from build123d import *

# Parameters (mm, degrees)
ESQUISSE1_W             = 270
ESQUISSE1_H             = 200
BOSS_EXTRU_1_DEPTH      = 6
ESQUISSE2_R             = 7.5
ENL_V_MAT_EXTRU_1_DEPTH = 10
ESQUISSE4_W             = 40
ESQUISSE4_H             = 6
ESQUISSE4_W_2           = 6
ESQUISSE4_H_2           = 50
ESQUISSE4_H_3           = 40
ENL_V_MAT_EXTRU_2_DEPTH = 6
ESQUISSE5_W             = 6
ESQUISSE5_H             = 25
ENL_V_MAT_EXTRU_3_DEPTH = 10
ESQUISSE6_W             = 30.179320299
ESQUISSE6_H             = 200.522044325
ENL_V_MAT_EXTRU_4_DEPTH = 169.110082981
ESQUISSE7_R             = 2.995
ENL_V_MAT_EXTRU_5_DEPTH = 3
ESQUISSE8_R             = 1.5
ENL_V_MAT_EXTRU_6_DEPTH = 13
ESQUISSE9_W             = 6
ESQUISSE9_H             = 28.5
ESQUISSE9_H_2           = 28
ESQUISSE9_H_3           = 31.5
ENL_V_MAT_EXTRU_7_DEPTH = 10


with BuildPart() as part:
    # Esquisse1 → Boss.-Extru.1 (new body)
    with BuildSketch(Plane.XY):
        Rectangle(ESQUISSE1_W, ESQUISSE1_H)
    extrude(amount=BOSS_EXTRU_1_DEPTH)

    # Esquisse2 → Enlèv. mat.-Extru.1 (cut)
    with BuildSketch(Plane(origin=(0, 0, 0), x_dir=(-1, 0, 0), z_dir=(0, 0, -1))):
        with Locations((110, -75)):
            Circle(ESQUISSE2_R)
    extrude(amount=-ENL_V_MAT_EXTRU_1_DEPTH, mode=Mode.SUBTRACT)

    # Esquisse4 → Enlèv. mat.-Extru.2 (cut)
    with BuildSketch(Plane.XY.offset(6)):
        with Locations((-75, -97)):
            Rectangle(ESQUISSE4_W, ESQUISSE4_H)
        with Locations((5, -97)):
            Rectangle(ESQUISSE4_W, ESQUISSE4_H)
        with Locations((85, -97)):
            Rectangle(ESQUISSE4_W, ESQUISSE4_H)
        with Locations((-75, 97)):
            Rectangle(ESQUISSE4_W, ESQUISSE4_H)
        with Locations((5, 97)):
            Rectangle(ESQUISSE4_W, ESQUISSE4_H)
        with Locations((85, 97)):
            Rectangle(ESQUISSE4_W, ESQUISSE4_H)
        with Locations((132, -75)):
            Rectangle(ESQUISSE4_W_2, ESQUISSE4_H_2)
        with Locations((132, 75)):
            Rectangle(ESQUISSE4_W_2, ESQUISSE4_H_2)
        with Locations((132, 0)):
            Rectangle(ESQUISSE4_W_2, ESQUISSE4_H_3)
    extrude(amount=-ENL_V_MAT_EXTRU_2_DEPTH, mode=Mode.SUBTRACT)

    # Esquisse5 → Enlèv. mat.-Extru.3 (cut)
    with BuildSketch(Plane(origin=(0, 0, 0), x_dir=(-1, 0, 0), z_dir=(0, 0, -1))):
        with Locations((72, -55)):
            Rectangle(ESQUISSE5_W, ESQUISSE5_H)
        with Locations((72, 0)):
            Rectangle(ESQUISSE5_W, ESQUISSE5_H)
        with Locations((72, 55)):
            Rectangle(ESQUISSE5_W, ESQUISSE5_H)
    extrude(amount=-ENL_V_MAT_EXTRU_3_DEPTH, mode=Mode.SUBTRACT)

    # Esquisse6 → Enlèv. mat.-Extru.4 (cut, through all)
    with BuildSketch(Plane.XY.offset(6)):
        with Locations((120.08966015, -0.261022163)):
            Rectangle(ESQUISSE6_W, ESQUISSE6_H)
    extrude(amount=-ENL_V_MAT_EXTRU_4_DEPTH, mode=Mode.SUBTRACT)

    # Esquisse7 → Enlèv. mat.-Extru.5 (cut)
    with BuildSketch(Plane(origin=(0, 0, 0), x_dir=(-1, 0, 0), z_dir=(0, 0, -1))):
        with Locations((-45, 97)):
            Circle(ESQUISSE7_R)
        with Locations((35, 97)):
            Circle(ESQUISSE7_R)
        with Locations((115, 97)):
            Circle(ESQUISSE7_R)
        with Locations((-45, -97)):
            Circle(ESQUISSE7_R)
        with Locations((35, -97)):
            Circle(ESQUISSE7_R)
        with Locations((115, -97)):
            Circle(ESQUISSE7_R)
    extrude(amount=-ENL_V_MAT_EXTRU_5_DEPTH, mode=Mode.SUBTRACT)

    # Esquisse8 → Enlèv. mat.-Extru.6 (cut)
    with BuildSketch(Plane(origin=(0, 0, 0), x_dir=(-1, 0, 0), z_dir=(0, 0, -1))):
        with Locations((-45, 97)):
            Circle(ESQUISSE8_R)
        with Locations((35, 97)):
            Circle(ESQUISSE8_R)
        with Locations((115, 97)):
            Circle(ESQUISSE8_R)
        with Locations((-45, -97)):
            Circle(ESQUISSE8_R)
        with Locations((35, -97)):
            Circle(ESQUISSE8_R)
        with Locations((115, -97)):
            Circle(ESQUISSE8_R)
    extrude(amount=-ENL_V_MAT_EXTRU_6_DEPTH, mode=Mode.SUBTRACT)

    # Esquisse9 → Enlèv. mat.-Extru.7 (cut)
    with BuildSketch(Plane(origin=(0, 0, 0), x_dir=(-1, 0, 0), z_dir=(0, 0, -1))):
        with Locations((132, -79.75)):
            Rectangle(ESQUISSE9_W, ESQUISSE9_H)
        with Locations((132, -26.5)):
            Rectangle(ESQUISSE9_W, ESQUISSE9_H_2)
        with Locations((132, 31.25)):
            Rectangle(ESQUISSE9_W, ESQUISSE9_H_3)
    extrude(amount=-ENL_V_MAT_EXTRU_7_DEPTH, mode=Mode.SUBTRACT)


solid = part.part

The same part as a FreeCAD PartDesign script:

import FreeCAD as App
import Part
import Sketcher

V = App.Vector
Q = App.Units.Quantity


def add_polygon(sketch, points):
    """Adds a closed chain of lines whose ends are joined by coincident constraints."""
    first, n = sketch.GeometryCount, len(points)
    for a, b in zip(points, points[1:] + points[:1]):
        sketch.addGeometry(Part.LineSegment(App.Vector(*a, 0), App.Vector(*b, 0)), False)
    for i in range(n):
        sketch.addConstraint(Sketcher.Constraint("Coincident", first + i, 2, first + (i + 1) % n, 1))

doc = App.newDocument("Part")
body = doc.addObject("PartDesign::Body", "Body")

sketch1 = doc.addObject("Sketcher::SketchObject", "Sketch")
body.addObject(sketch1)
sketch1.AttachmentSupport = (doc.XY_Plane, [""])
sketch1.MapMode = "FlatFace"
add_polygon(sketch1, [(-135, 100), (-135, -100), (135, -100), (135, 100)])
sketch1.addConstraint([
    Sketcher.Constraint("Vertical", 0),
    Sketcher.Constraint("Horizontal", 1),
    Sketcher.Constraint("Vertical", 2),
    Sketcher.Constraint("Horizontal", 3),
    Sketcher.Constraint("Symmetric", 0, 2, 2, 2, -1, 1),
    Sketcher.Constraint("DistanceX", 1, 1, 1, 2, Q("270 mm")),
    Sketcher.Constraint("DistanceY", 0, 2, 0, 1, Q("200 mm")),
])
pad1 = doc.addObject("PartDesign::Pad", "Pad")
body.addObject(pad1)
pad1.Profile = sketch1
pad1.Length = 6

sketch2 = doc.addObject("Sketcher::SketchObject", "Sketch001")
body.addObject(sketch2)
sketch2.AttachmentSupport = (doc.XY_Plane, [""])
sketch2.MapMode = "FlatFace"
sketch2.addGeometry(Part.Circle(V(-110, -75, 0), V(0, 0, 1), 8), False)
sketch2.addConstraint([
    Sketcher.Constraint("Diameter", 0, Q("15 mm")),
    Sketcher.Constraint("DistanceX", 0, 3, -1, 1, Q("110 mm")),
    Sketcher.Constraint("DistanceY", 0, 3, -1, 1, Q("75 mm")),
])
pocket1 = doc.addObject("PartDesign::Pocket", "Pocket")
body.addObject(pocket1)
pocket1.Profile = sketch2
pocket1.Length = 10
pocket1.Reversed = True

sketch3 = doc.addObject("Sketcher::SketchObject", "Sketch002")
body.addObject(sketch3)
sketch3.AttachmentSupport = (doc.XY_Plane, [""])
sketch3.MapMode = "FlatFace"
sketch3.AttachmentOffset = App.Placement(V(0, 0, 6), App.Rotation())
add_polygon(sketch3, [(-95, -94), (-95, -100), (-55, -100), (-55, -94)])
add_polygon(sketch3, [(-15, -94), (-15, -100), (25, -100), (25, -94)])
add_polygon(sketch3, [(65, -94), (65, -100), (105, -100), (105, -94)])
add_polygon(sketch3, [(-95, 100), (-95, 94), (-55, 94), (-55, 100)])
add_polygon(sketch3, [(-15, 100), (-15, 94), (25, 94), (25, 100)])
add_polygon(sketch3, [(65, 100), (65, 94), (105, 94), (105, 100)])
add_polygon(sketch3, [(129, -50), (129, -100), (135, -100), (135, -50)])
add_polygon(sketch3, [(129, 100), (129, 50), (135, 50), (135, 100)])
add_polygon(sketch3, [(129, 20), (129, -20), (135, -20), (135, 20)])
sketch3.addConstraint([
    Sketcher.Constraint("Vertical", 0),
    Sketcher.Constraint("Horizontal", 1),
    Sketcher.Constraint("Vertical", 2),
    Sketcher.Constraint("Horizontal", 3),
    Sketcher.Constraint("Vertical", 4),
    Sketcher.Constraint("Horizontal", 5),
    Sketcher.Constraint("Vertical", 6),
    Sketcher.Constraint("Horizontal", 7),
    Sketcher.Constraint("Vertical", 8),
    Sketcher.Constraint("Horizontal", 9),
    Sketcher.Constraint("Vertical", 10),
    Sketcher.Constraint("Horizontal", 11),
    Sketcher.Constraint("Vertical", 12),
    Sketcher.Constraint("Horizontal", 13),
    Sketcher.Constraint("Vertical", 14),
    Sketcher.Constraint("Horizontal", 15),
    Sketcher.Constraint("Vertical", 16),
    Sketcher.Constraint("Horizontal", 17),
    Sketcher.Constraint("Vertical", 18),
    Sketcher.Constraint("Horizontal", 19),
    Sketcher.Constraint("Vertical", 20),
    Sketcher.Constraint("Horizontal", 21),
    Sketcher.Constraint("Vertical", 22),
    Sketcher.Constraint("Horizontal", 23),
    Sketcher.Constraint("Vertical", 24),
    Sketcher.Constraint("Horizontal", 25),
    Sketcher.Constraint("Vertical", 26),
    Sketcher.Constraint("Horizontal", 27),
    Sketcher.Constraint("Vertical", 28),
    Sketcher.Constraint("Horizontal", 29),
    Sketcher.Constraint("Vertical", 30),
    Sketcher.Constraint("Horizontal", 31),
    Sketcher.Constraint("Vertical", 32),
    Sketcher.Constraint("Horizontal", 33),
    Sketcher.Constraint("Vertical", 34),
    Sketcher.Constraint("Horizontal", 35),
    Sketcher.Constraint("Symmetric", 3, 2, 12, 2, -1),
    Sketcher.Constraint("Symmetric", 1, 2, 14, 2, -1),
    Sketcher.Constraint("Symmetric", 7, 2, 16, 2, -1),
    Sketcher.Constraint("Symmetric", 5, 2, 18, 2, -1),
    Sketcher.Constraint("Symmetric", 11, 2, 20, 2, -1),
    Sketcher.Constraint("Symmetric", 9, 2, 22, 2, -1),
    Sketcher.Constraint("Symmetric", 27, 2, 28, 2, -1),
    Sketcher.Constraint("Symmetric", 25, 2, 30, 2, -1),
    Sketcher.Constraint("Horizontal", 1, 2, 4, 2),
    Sketcher.Constraint("Horizontal", 3, 2, 6, 2),
    Sketcher.Constraint("Horizontal", 5, 2, 8, 2),
    Sketcher.Constraint("Horizontal", 7, 2, 10, 2),
    Sketcher.Constraint("Horizontal", 9, 2, 24, 2),
    Sketcher.Constraint("Vertical", 31, 2, 32, 2),
    Sketcher.Constraint("Vertical", 30, 2, 33, 2),
    Sketcher.Constraint("Equal", 3, 5),
    Sketcher.Constraint("Equal", 7, 9),
    Sketcher.Constraint("Equal", 35, 0),
    Sketcher.Constraint("Equal", 23, 32),
    Sketcher.Constraint("DistanceX", 1, 1, 1, 2, Q("40 mm")),
    Sketcher.Constraint("DistanceX", 25, 1, 25, 2, Q("6 mm")),
    Sketcher.Constraint("DistanceY", 24, 2, 24, 1, Q("50 mm")),
    Sketcher.Constraint("DistanceX", 0, 2, -1, 1, Q("95 mm")),
    Sketcher.Constraint("DistanceY", 0, 2, -1, 1, Q("100 mm")),
    Sketcher.Constraint("DistanceX", 4, 2, -1, 1, Q("15 mm")),
    Sketcher.Constraint("DistanceX", -1, 1, 8, 2, Q("65 mm")),
    Sketcher.Constraint("DistanceX", -1, 1, 24, 2, Q("129 mm")),
    Sketcher.Constraint("DistanceY", 32, 2, -1, 1, Q("20 mm")),
])
pocket2 = doc.addObject("PartDesign::Pocket", "Pocket001")
body.addObject(pocket2)
pocket2.Profile = sketch3
pocket2.Length = 6

sketch4 = doc.addObject("Sketcher::SketchObject", "Sketch003")
body.addObject(sketch4)
sketch4.AttachmentSupport = (doc.XY_Plane, [""])
sketch4.MapMode = "FlatFace"
add_polygon(sketch4, [(-69, -42), (-69, -68), (-75, -68), (-75, -42)])
add_polygon(sketch4, [(-69, 12), (-69, -12), (-75, -12), (-75, 12)])
add_polygon(sketch4, [(-69, 68), (-69, 42), (-75, 42), (-75, 68)])
sketch4.addConstraint([
    Sketcher.Constraint("Vertical", 0),
    Sketcher.Constraint("Horizontal", 1),
    Sketcher.Constraint("Vertical", 2),
    Sketcher.Constraint("Horizontal", 3),
    Sketcher.Constraint("Vertical", 4),
    Sketcher.Constraint("Horizontal", 5),
    Sketcher.Constraint("Vertical", 6),
    Sketcher.Constraint("Horizontal", 7),
    Sketcher.Constraint("Vertical", 8),
    Sketcher.Constraint("Horizontal", 9),
    Sketcher.Constraint("Vertical", 10),
    Sketcher.Constraint("Horizontal", 11),
    Sketcher.Constraint("Symmetric", 3, 2, 8, 2, -1),
    Sketcher.Constraint("Symmetric", 1, 2, 10, 2, -1),
    Sketcher.Constraint("Vertical", 3, 2, 4, 2),
    Sketcher.Constraint("Vertical", 2, 2, 5, 2),
    Sketcher.Constraint("Equal", 2, 4),
    Sketcher.Constraint("DistanceX", 1, 2, 1, 1, Q("6 mm")),
    Sketcher.Constraint("DistanceY", 0, 2, 0, 1, Q("25 mm")),
    Sketcher.Constraint("DistanceX", 0, 2, -1, 1, Q("69 mm")),
    Sketcher.Constraint("DistanceY", 3, 2, 4, 2, Q("30 mm")),
    Sketcher.Constraint("DistanceY", 7, 2, 8, 2, Q("30 mm")),
])
pocket3 = doc.addObject("PartDesign::Pocket", "Pocket002")
body.addObject(pocket3)
pocket3.Profile = sketch4
pocket3.Length = 10
pocket3.Reversed = True

sketch5 = doc.addObject("Sketcher::SketchObject", "Sketch004")
body.addObject(sketch5)
sketch5.AttachmentSupport = (doc.XY_Plane, [""])
sketch5.MapMode = "FlatFace"
sketch5.AttachmentOffset = App.Placement(V(0, 0, 6), App.Rotation())
add_polygon(sketch5, [(105, 100), (105, -101), (135, -101), (135, 100)])
sketch5.addConstraint([
    Sketcher.Constraint("Vertical", 0),
    Sketcher.Constraint("Horizontal", 1),
    Sketcher.Constraint("Vertical", 2),
    Sketcher.Constraint("Horizontal", 3),
    Sketcher.Constraint("DistanceX", -1, 1, 0, 2, Q("105 mm")),
    Sketcher.Constraint("DistanceY", -1, 1, 2, 2, Q("100 mm")),
    Sketcher.Constraint("DistanceX", 1, 1, 1, 2, Q("30.17932 mm")),
    Sketcher.Constraint("DistanceY", 0, 2, 0, 1, Q("200.522044 mm")),
])
pocket4 = doc.addObject("PartDesign::Pocket", "Pocket003")
body.addObject(pocket4)
pocket4.Profile = sketch5
pocket4.Type = "ThroughAll"

sketch6 = doc.addObject("Sketcher::SketchObject", "Sketch005")
body.addObject(sketch6)
sketch6.AttachmentSupport = (doc.XY_Plane, [""])
sketch6.MapMode = "FlatFace"
sketch6.addGeometry([
    Part.Circle(V(45, 97, 0), V(0, 0, 1), 3),
    Part.Circle(V(-35, 97, 0), V(0, 0, 1), 3),
    Part.Circle(V(-115, 97, 0), V(0, 0, 1), 3),
    Part.Circle(V(45, -97, 0), V(0, 0, 1), 3),
    Part.Circle(V(-35, -97, 0), V(0, 0, 1), 3),
    Part.Circle(V(-115, -97, 0), V(0, 0, 1), 3),
], False)
sketch6.addConstraint([
    Sketcher.Constraint("Equal", 0, 1),
    Sketcher.Constraint("Equal", 1, 2),
    Sketcher.Constraint("Equal", 2, 3),
    Sketcher.Constraint("Equal", 3, 4),
    Sketcher.Constraint("Equal", 4, 5),
    Sketcher.Constraint("Symmetric", 0, 3, 3, 3, -1),
    Sketcher.Constraint("Symmetric", 1, 3, 4, 3, -1),
    Sketcher.Constraint("Symmetric", 2, 3, 5, 3, -1),
    Sketcher.Constraint("Horizontal", 0, 3, 1, 3),
    Sketcher.Constraint("Horizontal", 1, 3, 2, 3),
    Sketcher.Constraint("Diameter", 0, Q("5.99 mm")),
    Sketcher.Constraint("DistanceX", -1, 1, 0, 3, Q("45 mm")),
    Sketcher.Constraint("DistanceY", -1, 1, 0, 3, Q("97 mm")),
    Sketcher.Constraint("DistanceX", 1, 3, -1, 1, Q("35 mm")),
    Sketcher.Constraint("DistanceX", 2, 3, -1, 1, Q("115 mm")),
])
pocket5 = doc.addObject("PartDesign::Pocket", "Pocket004")
body.addObject(pocket5)
pocket5.Profile = sketch6
pocket5.Length = 3
pocket5.Reversed = True

sketch7 = doc.addObject("Sketcher::SketchObject", "Sketch006")
body.addObject(sketch7)
sketch7.AttachmentSupport = (doc.XY_Plane, [""])
sketch7.MapMode = "FlatFace"
sketch7.addGeometry([
    Part.Circle(V(45, 97, 0), V(0, 0, 1), 1.5),
    Part.Circle(V(-35, 97, 0), V(0, 0, 1), 1.5),
    Part.Circle(V(-115, 97, 0), V(0, 0, 1), 1.5),
    Part.Circle(V(45, -97, 0), V(0, 0, 1), 1.5),
    Part.Circle(V(-35, -97, 0), V(0, 0, 1), 1.5),
    Part.Circle(V(-115, -97, 0), V(0, 0, 1), 1.5),
], False)
sketch7.addConstraint([
    Sketcher.Constraint("Equal", 0, 1),
    Sketcher.Constraint("Equal", 1, 2),
    Sketcher.Constraint("Equal", 2, 3),
    Sketcher.Constraint("Equal", 3, 4),
    Sketcher.Constraint("Equal", 4, 5),
    Sketcher.Constraint("Symmetric", 0, 3, 3, 3, -1),
    Sketcher.Constraint("Symmetric", 1, 3, 4, 3, -1),
    Sketcher.Constraint("Symmetric", 2, 3, 5, 3, -1),
    Sketcher.Constraint("Horizontal", 0, 3, 1, 3),
    Sketcher.Constraint("Horizontal", 1, 3, 2, 3),
    Sketcher.Constraint("Diameter", 0, Q("3 mm")),
    Sketcher.Constraint("DistanceX", -1, 1, 0, 3, Q("45 mm")),
    Sketcher.Constraint("DistanceY", -1, 1, 0, 3, Q("97 mm")),
    Sketcher.Constraint("DistanceX", 1, 3, -1, 1, Q("35 mm")),
    Sketcher.Constraint("DistanceX", 2, 3, -1, 1, Q("115 mm")),
])
pocket6 = doc.addObject("PartDesign::Pocket", "Pocket005")
body.addObject(pocket6)
pocket6.Profile = sketch7
pocket6.Length = 13
pocket6.Reversed = True

sketch8 = doc.addObject("Sketcher::SketchObject", "Sketch007")
body.addObject(sketch8)
sketch8.AttachmentSupport = (doc.XY_Plane, [""])
sketch8.MapMode = "FlatFace"
add_polygon(sketch8, [(-129, -66), (-129, -94), (-135, -94), (-135, -66)])
add_polygon(sketch8, [(-129, -12), (-129, -40), (-135, -40), (-135, -12)])
add_polygon(sketch8, [(-129, 47), (-129, 16), (-135, 16), (-135, 47)])
sketch8.addConstraint([
    Sketcher.Constraint("Vertical", 0),
    Sketcher.Constraint("Horizontal", 1),
    Sketcher.Constraint("Vertical", 2),
    Sketcher.Constraint("Horizontal", 3),
    Sketcher.Constraint("Vertical", 4),
    Sketcher.Constraint("Horizontal", 5),
    Sketcher.Constraint("Vertical", 6),
    Sketcher.Constraint("Horizontal", 7),
    Sketcher.Constraint("Vertical", 8),
    Sketcher.Constraint("Horizontal", 9),
    Sketcher.Constraint("Vertical", 10),
    Sketcher.Constraint("Horizontal", 11),
    Sketcher.Constraint("Vertical", 3, 2, 4, 2),
    Sketcher.Constraint("Vertical", 2, 2, 5, 2),
    Sketcher.Constraint("Vertical", 7, 2, 8, 2),
    Sketcher.Constraint("Vertical", 6, 2, 9, 2),
    Sketcher.Constraint("DistanceX", 1, 2, 1, 1, Q("6 mm")),
    Sketcher.Constraint("DistanceY", 4, 2, 4, 1, Q("28 mm")),
    Sketcher.Constraint("DistanceY", 0, 2, 0, 1, Q("28.5 mm")),
    Sketcher.Constraint("DistanceY", 8, 2, 8, 1, Q("31.5 mm")),
    Sketcher.Constraint("DistanceX", 0, 2, -1, 1, Q("129 mm")),
    Sketcher.Constraint("DistanceY", 0, 2, -1, 1, Q("94 mm")),
    Sketcher.Constraint("DistanceY", -1, 1, 10, 2, Q("47 mm")),
    Sketcher.Constraint("DistanceY", 3, 2, 4, 2, Q("25 mm")),
])
pocket7 = doc.addObject("PartDesign::Pocket", "Pocket006")
body.addObject(pocket7)
pocket7.Profile = sketch8
pocket7.Length = 10
pocket7.Reversed = True

doc.recompute()
